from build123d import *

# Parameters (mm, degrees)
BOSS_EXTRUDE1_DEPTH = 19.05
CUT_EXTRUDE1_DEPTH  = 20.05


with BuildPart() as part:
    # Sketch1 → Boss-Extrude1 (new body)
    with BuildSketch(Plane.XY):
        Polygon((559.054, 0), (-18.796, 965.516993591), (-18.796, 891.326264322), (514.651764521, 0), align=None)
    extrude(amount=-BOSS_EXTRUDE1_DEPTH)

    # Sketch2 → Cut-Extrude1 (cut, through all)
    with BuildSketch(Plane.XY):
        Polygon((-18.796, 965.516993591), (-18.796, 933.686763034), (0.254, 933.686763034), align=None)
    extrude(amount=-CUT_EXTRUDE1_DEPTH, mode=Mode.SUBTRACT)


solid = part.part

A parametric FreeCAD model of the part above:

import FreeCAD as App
import Part
import Sketcher

V = App.Vector
Q = App.Units.Quantity


def add_polygon(sketch, points):
    """Adds a closed chain of lines whose ends are joined by coincident constraints."""
    first, n = sketch.GeometryCount, len(points)
    for a, b in zip(points, points[1:] + points[:1]):
        sketch.addGeometry(Part.LineSegment(App.Vector(*a, 0), App.Vector(*b, 0)), False)
    for i in range(n):
        sketch.addConstraint(Sketcher.Constraint("Coincident", first + i, 2, first + (i + 1) % n, 1))

doc = App.newDocument("Part")
body = doc.addObject("PartDesign::Body", "Body")

sketch1 = doc.addObject("Sketcher::SketchObject", "Sketch")
body.addObject(sketch1)
sketch1.AttachmentSupport = (doc.XY_Plane, [""])
sketch1.MapMode = "FlatFace"
add_polygon(sketch1, [(559, 0), (-19, 966), (-19, 891), (515, 0)])
sketch1.addConstraint(Sketcher.Constraint("Vertical", 1))
sketch1.addConstraint(Sketcher.Constraint("Horizontal", 3))
sketch1.addConstraint(Sketcher.Constraint("PointOnObject", 2, 2, -1))
sketch1.addConstraint(Sketcher.Constraint("Parallel", 0, 2))
sketch1.addConstraint(Sketcher.Constraint("Angle", 0, Q("120.9 deg")))
sketch1.addConstraint(Sketcher.Constraint("DistanceX", 0, 2, -1, 1, Q("0.74 in")))
sketch1.addConstraint(Sketcher.Constraint("DistanceX", -1, 1, 3, 2, Q("22.01 in")))
sketch1.addConstraint(Sketcher.Constraint("DistanceY", 1, 2, 1, 1, 74.190729))
pad1 = doc.addObject("PartDesign::Pad", "Pad")
body.addObject(pad1)
pad1.Profile = sketch1
pad1.Length = Q("0.75 in")
pad1.Reversed = True

sketch2 = doc.addObject("Sketcher::SketchObject", "Sketch001")
body.addObject(sketch2)
sketch2.AttachmentSupport = (doc.XY_Plane, [""])
sketch2.MapMode = "FlatFace"
add_polygon(sketch2, [(-19, 966), (-19, 934), (0, 934)])
sketch2.addConstraint(Sketcher.Constraint("Vertical", 0))
sketch2.addConstraint(Sketcher.Constraint("Horizontal", 1))
sketch2.addConstraint(Sketcher.Constraint("DistanceX", 1, 1, 1, 2, Q("0.75 in")))
sketch2.addConstraint(Sketcher.Constraint("Angle", 2, Q("120.9 deg")))
sketch2.addConstraint(Sketcher.Constraint("DistanceX", 0, 2, -1, 1, Q("0.74 in")))
sketch2.addConstraint(Sketcher.Constraint("DistanceY", -1, 1, 0, 2, 933.686763))
pocket1 = doc.addObject("PartDesign::Pocket", "Pocket")
body.addObject(pocket1)
pocket1.Profile = sketch2
pocket1.Type = "ThroughAll"

doc.recompute()
